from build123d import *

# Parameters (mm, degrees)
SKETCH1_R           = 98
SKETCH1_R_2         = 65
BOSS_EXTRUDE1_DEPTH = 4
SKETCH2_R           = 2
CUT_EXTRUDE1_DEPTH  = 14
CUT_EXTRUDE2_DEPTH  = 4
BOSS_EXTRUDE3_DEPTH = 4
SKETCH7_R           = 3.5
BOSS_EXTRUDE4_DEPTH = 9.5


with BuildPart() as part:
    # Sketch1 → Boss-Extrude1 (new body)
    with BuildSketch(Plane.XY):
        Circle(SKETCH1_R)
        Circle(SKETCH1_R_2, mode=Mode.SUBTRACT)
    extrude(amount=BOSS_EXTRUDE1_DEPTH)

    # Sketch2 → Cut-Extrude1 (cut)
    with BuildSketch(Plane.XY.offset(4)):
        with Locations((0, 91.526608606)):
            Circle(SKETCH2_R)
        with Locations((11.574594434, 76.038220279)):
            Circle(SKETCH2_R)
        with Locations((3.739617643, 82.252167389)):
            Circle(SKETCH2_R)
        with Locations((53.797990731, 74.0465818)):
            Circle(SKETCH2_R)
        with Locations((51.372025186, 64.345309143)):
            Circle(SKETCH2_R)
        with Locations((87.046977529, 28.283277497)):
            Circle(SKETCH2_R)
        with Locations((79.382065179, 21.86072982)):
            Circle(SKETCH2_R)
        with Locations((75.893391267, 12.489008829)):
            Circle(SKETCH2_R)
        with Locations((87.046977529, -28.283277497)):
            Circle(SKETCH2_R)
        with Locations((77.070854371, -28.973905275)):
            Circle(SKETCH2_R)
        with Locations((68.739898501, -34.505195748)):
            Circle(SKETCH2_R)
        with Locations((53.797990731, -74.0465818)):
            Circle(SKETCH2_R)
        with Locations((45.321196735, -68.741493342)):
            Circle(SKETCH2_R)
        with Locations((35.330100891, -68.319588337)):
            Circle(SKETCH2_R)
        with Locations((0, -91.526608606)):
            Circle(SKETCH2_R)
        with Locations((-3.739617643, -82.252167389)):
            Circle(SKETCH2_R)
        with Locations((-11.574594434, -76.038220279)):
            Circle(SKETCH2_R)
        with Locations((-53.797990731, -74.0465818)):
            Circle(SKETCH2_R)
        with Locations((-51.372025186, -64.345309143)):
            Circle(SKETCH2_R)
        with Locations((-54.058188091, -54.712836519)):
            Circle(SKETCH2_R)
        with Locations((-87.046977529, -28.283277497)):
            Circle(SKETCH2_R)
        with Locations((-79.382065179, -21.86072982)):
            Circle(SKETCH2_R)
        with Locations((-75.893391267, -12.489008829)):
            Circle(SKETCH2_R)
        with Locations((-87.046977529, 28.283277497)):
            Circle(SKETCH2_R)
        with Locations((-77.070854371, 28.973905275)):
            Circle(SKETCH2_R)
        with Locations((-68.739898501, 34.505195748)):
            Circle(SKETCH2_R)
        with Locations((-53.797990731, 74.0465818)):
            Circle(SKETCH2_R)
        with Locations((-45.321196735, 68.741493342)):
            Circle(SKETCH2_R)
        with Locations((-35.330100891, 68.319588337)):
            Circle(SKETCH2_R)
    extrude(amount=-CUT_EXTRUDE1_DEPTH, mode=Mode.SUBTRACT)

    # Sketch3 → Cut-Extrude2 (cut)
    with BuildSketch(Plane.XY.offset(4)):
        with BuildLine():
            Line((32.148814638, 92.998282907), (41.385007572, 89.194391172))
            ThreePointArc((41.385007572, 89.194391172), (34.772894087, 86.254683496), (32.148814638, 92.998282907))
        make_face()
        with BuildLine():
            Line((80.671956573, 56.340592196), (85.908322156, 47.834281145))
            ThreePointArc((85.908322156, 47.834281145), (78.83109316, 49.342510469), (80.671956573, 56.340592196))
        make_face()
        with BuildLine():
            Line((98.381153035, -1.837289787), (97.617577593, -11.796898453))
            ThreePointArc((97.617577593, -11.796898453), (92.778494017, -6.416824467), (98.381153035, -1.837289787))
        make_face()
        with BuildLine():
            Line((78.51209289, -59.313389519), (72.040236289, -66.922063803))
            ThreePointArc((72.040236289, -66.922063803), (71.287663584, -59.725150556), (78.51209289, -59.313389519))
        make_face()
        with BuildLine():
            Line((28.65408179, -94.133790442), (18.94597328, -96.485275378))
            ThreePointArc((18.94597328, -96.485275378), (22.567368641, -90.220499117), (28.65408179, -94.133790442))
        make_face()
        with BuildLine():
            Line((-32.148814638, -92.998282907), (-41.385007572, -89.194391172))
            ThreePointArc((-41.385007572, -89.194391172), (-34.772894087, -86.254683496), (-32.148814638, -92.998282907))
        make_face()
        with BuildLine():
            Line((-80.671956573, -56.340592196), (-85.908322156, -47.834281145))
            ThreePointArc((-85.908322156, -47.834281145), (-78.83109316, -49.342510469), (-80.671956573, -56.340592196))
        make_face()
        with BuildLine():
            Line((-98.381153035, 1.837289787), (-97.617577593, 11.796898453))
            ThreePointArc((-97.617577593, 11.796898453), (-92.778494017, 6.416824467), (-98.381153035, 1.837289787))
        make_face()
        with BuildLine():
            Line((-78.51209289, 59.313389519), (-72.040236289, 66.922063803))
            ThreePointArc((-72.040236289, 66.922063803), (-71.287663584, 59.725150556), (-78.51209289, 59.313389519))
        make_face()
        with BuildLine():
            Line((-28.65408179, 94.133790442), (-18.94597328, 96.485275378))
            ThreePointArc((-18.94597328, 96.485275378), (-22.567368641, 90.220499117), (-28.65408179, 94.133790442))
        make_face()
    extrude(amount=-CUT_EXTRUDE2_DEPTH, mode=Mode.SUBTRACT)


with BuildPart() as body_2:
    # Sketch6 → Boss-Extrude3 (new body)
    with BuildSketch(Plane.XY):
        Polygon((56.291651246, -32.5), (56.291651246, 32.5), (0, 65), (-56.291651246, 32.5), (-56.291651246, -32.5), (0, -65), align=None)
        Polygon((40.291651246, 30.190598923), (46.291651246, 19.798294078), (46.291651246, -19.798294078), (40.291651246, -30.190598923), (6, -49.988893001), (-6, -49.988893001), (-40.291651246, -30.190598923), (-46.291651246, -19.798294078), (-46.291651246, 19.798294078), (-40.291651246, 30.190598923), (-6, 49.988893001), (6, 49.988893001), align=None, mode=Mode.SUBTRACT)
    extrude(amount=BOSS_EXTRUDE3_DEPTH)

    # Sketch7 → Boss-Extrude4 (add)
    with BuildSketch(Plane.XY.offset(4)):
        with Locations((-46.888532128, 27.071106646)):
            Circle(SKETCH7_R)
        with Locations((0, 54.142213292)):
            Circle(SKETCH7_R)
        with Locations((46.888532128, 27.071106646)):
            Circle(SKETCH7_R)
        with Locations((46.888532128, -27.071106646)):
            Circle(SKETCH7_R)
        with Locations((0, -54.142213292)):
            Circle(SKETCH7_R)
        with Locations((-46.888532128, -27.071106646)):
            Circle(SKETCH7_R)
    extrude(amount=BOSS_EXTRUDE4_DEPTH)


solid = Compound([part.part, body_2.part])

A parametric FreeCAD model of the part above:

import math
import FreeCAD as App
import Part
import Sketcher

V = App.Vector
Q = App.Units.Quantity

doc = App.newDocument("Part")
body = doc.addObject("PartDesign::Body", "Body")

sketch1 = body.newObject("Sketcher::SketchObject", "Sketch")
sketch1.AttachmentSupport = (doc.getObject("XY_Plane"), [""])
sketch1.MapMode = "FlatFace"
sketch1.addGeometry([
    Part.Circle(V(0, 0, 0), V(0, 0, 1), 98),
    Part.Circle(V(0, 0, 0), V(0, 0, 1), 65),
], False)
sketch1.addConstraint([
    Sketcher.Constraint("Coincident", 0, 3, -1, 1),
    Sketcher.Constraint("Coincident", 1, 3, -1, 1),
    Sketcher.Constraint("Diameter", 0, 196.0),
    Sketcher.Constraint("Diameter", 1, 130.0),
])
pad1 = body.newObject("PartDesign::Pad", "Pad")
pad1.Profile = sketch1
pad1.Length = 4

sketch2 = body.newObject("Sketcher::SketchObject", "Sketch001")
sketch2.AttachmentSupport = (doc.getObject("XY_Plane"), [""])
sketch2.MapMode = "FlatFace"
sketch2.AttachmentOffset = App.Placement(V(0, 0, 4), App.Rotation())
sketch2.addGeometry([
    Part.Circle(V(0, 91.5, 0), V(0, 0, 1), 2),
    Part.Circle(V(11.6, 76, 0), V(0, 0, 1), 2),
    Part.Circle(V(3.7, 82.3, 0), V(0, 0, 1), 2),
    Part.Circle(V(53.8, 74, 0), V(0, 0, 1), 2),
    Part.Circle(V(51.4, 64.3, 0), V(0, 0, 1), 2),
    Part.Circle(V(87, 28.3, 0), V(0, 0, 1), 2),
    Part.Circle(V(79.4, 21.9, 0), V(0, 0, 1), 2),
    Part.Circle(V(75.9, 12.5, 0), V(0, 0, 1), 2),
    Part.Circle(V(87, -28.3, 0), V(0, 0, 1), 2),
    Part.Circle(V(77.1, -29, 0), V(0, 0, 1), 2),
    Part.Circle(V(68.7, -34.5, 0), V(0, 0, 1), 2),
    Part.Circle(V(53.8, -74, 0), V(0, 0, 1), 2),
    Part.Circle(V(45.3, -68.7, 0), V(0, 0, 1), 2),
    Part.Circle(V(35.3, -68.3, 0), V(0, 0, 1), 2),
    Part.Circle(V(0, -91.5, 0), V(0, 0, 1), 2),
    Part.Circle(V(-3.7, -82.3, 0), V(0, 0, 1), 2),
    Part.Circle(V(-11.6, -76, 0), V(0, 0, 1), 2),
    Part.Circle(V(-53.8, -74, 0), V(0, 0, 1), 2),
    Part.Circle(V(-51.4, -64.3, 0), V(0, 0, 1), 2),
    Part.Circle(V(-54.1, -54.7, 0), V(0, 0, 1), 2),
    Part.Circle(V(-87, -28.3, 0), V(0, 0, 1), 2),
    Part.Circle(V(-79.4, -21.9, 0), V(0, 0, 1), 2),
    Part.Circle(V(-75.9, -12.5, 0), V(0, 0, 1), 2),
    Part.Circle(V(-87, 28.3, 0), V(0, 0, 1), 2),
    Part.Circle(V(-77.1, 29, 0), V(0, 0, 1), 2),
    Part.Circle(V(-68.7, 34.5, 0), V(0, 0, 1), 2),
    Part.Circle(V(-53.8, 74, 0), V(0, 0, 1), 2),
    Part.Circle(V(-45.3, 68.7, 0), V(0, 0, 1), 2),
    Part.Circle(V(-35.3, 68.3, 0), V(0, 0, 1), 2),
], False)
sketch2.addConstraint([
    Sketcher.Constraint("Equal", 0, 1),
    Sketcher.Constraint("Equal", 1, 2),
    Sketcher.Constraint("Equal", 2, 3),
    Sketcher.Constraint("Equal", 3, 4),
    Sketcher.Constraint("Equal", 4, 5),
    Sketcher.Constraint("Equal", 5, 6),
    Sketcher.Constraint("Equal", 6, 7),
    Sketcher.Constraint("Equal", 7, 8),
    Sketcher.Constraint("Equal", 8, 9),
    Sketcher.Constraint("Equal", 9, 10),
    Sketcher.Constraint("Equal", 10, 11),
    Sketcher.Constraint("Equal", 11, 12),
    Sketcher.Constraint("Equal", 12, 13),
    Sketcher.Constraint("Equal", 13, 14),
    Sketcher.Constraint("Equal", 14, 15),
    Sketcher.Constraint("Equal", 15, 16),
    Sketcher.Constraint("Equal", 16, 17),
    Sketcher.Constraint("Equal", 17, 18),
    Sketcher.Constraint("Equal", 18, 19),
    Sketcher.Constraint("Equal", 19, 20),
    Sketcher.Constraint("Equal", 20, 21),
    Sketcher.Constraint("Equal", 21, 22),
    Sketcher.Constraint("Equal", 22, 23),
    Sketcher.Constraint("Equal", 23, 24),
    Sketcher.Constraint("Equal", 24, 25),
    Sketcher.Constraint("Equal", 25, 26),
    Sketcher.Constraint("Equal", 26, 27),
    Sketcher.Constraint("Equal", 27, 28),
    Sketcher.Constraint("Symmetric", 0, 3, 14, 3, -1, 1),
    Sketcher.Constraint("Symmetric", 2, 3, 15, 3, -1, 1),
    Sketcher.Constraint("Symmetric", 1, 3, 16, 3, -1, 1),
    Sketcher.Constraint("Symmetric", 3, 3, 17, 3, -1, 1),
    Sketcher.Constraint("Symmetric", 4, 3, 18, 3, -1, 1),
    Sketcher.Constraint("Symmetric", 5, 3, 20, 3, -1, 1),
    Sketcher.Constraint("Symmetric", 6, 3, 21, 3, -1, 1),
    Sketcher.Constraint("Symmetric", 7, 3, 22, 3, -1, 1),
    Sketcher.Constraint("Symmetric", 8, 3, 23, 3, -1, 1),
    Sketcher.Constraint("Symmetric", 9, 3, 24, 3, -1, 1),
    Sketcher.Constraint("Symmetric", 10, 3, 25, 3, -1, 1),
    Sketcher.Constraint("Symmetric", 11, 3, 26, 3, -1, 1),
    Sketcher.Constraint("Symmetric", 12, 3, 27, 3, -1, 1),
    Sketcher.Constraint("Symmetric", 13, 3, 28, 3, -1, 1),
    Sketcher.Constraint("Symmetric", 11, 3, 17, 3, -2),
    Sketcher.Constraint("Symmetric", 8, 3, 20, 3, -2),
    Sketcher.Constraint("PointOnObject", 0, 3, -2),
    Sketcher.Constraint("Diameter", 0, 4.0),
    Sketcher.Constraint("DistanceX", -1, 1, 10, 3, 68.739899),
    Sketcher.Constraint("DistanceX", -1, 1, 13, 3, 35.330101),
    Sketcher.Constraint("DistanceY", 4, 3, 0, 3, 27.181299),
    Sketcher.Constraint("DistanceY", 7, 3, 4, 3, 51.8563),
    Sketcher.Constraint("DistanceX", 3, 3, 7, 3, 22.095401),
    Sketcher.Constraint("DistanceX", 12, 3, 10, 3, 23.418702),
    Sketcher.Constraint("DistanceY", -1, 1, 0, 3, 91.526609),
    Sketcher.Constraint("DistanceY", -1, 1, 1, 3, 76.03822),
    Sketcher.Constraint("DistanceX", -1, 1, 3, 3, 53.797991),
    Sketcher.Constraint("DistanceY", -1, 1, 3, 3, 74.046582),
    Sketcher.Constraint("DistanceY", -1, 1, 6, 3, 21.86073),
    Sketcher.Constraint("DistanceY", 13, 3, -1, 1, 68.319588),
    Sketcher.Constraint("DistanceX", 19, 3, -1, 1, 54.058188),
    Sketcher.Constraint("DistanceY", 2, 3, 0, 3, 9.274441),
    Sketcher.Constraint("DistanceX", 1, 3, 4, 3, 39.797431),
    Sketcher.Constraint("DistanceY", 5, 3, 4, 3, 36.062032),
    Sketcher.Constraint("DistanceX", 2, 3, 5, 3, 83.30736),
    Sketcher.Constraint("DistanceX", 4, 3, 6, 3, 28.01004),
    Sketcher.Constraint("DistanceX", 9, 3, 6, 3, 2.311211),
    Sketcher.Constraint("DistanceY", 10, 3, 9, 3, 5.53129),
    Sketcher.Constraint("DistanceX", 10, 3, 8, 3, 18.307079),
    Sketcher.Constraint("DistanceY", 10, 3, 8, 3, 6.221918),
    Sketcher.Constraint("DistanceY", 11, 3, 12, 3, 5.305088),
    Sketcher.Constraint("DistanceX", 16, 3, 12, 3, 56.895791),
    Sketcher.Constraint("DistanceY", 15, 3, 19, 3, 27.539331),
])
pocket1 = body.newObject("PartDesign::Pocket", "Pocket")
pocket1.Profile = sketch2
pocket1.Length = 14

sketch3 = body.newObject("Sketcher::SketchObject", "Sketch002")
sketch3.AttachmentSupport = (doc.getObject("XY_Plane"), [""])
sketch3.MapMode = "FlatFace"
sketch3.AttachmentOffset = App.Placement(V(0, 0, 4), App.Rotation())
sketch3.addGeometry([
    Part.LineSegment(V(41.385008, 89.194391, 0), V(32.148815, 92.998283, 0)),
    Part.ArcOfCircle(Part.Circle(V(36.676966, 90.877941, 0), V(0, 0, 1), 5), math.radians(154.908293), math.radians(340.323444)),
    Part.LineSegment(V(85.908322, 47.834281, 0), V(80.671957, 56.340592, 0)),
    Part.ArcOfCircle(Part.Circle(V(83.089002, 51.963619, 0), V(0, 0, 1), 5), math.radians(118.908293), math.radians(304.323444)),
    Part.LineSegment(V(97.617578, -11.796898, 0), V(98.381153, -1.83729, 0)),
    Part.ArcOfCircle(Part.Circle(V(97.763864, -6.799039, 0), V(0, 0, 1), 5), math.radians(82.908293), math.radians(268.323444)),
    Part.LineSegment(V(72.040236, -66.922064, 0), V(78.512093, -59.31339, 0)),
    Part.ArcOfCircle(Part.Circle(V(75.096252, -62.964695, 0), V(0, 0, 1), 5), math.radians(46.908293), math.radians(232.323444)),
    Part.LineSegment(V(18.945973, -96.485275, 0), V(28.654082, -94.13379, 0)),
    Part.ArcOfCircle(Part.Circle(V(23.744425, -95.079978, 0), V(0, 0, 1), 5), math.radians(10.908293), math.radians(196.323444)),
    Part.LineSegment(V(-41.385008, -89.194391, 0), V(-32.148815, -92.998283, 0)),
    Part.ArcOfCircle(Part.Circle(V(-36.676966, -90.877941, 0), V(0, 0, 1), 5), math.radians(-25.091707), math.radians(160.323444)),
    Part.LineSegment(V(-85.908322, -47.834281, 0), V(-80.671957, -56.340592, 0)),
    Part.ArcOfCircle(Part.Circle(V(-83.089002, -51.963619, 0), V(0, 0, 1), 5), math.radians(-61.091707), math.radians(124.323444)),
    Part.LineSegment(V(-97.617578, 11.796898, 0), V(-98.381153, 1.83729, 0)),
    Part.ArcOfCircle(Part.Circle(V(-97.763864, 6.799039, 0), V(0, 0, 1), 5), math.radians(-97.091707), math.radians(88.323444)),
    Part.LineSegment(V(-72.040236, 66.922064, 0), V(-78.512093, 59.31339, 0)),
    Part.ArcOfCircle(Part.Circle(V(-75.096252, 62.964695, 0), V(0, 0, 1), 5), math.radians(-133.091707), math.radians(52.323444)),
    Part.LineSegment(V(-18.945973, 96.485275, 0), V(-28.654082, 94.13379, 0)),
    Part.ArcOfCircle(Part.Circle(V(-23.744425, 95.079978, 0), V(0, 0, 1), 5), math.radians(-169.091707), math.radians(16.323444)),
], False)
sketch3.addConstraint([
    Sketcher.Constraint("Coincident", 0, 1, 1, 2),
    Sketcher.Constraint("Coincident", 1, 1, 0, 2),
    Sketcher.Constraint("Coincident", 2, 1, 3, 2),
    Sketcher.Constraint("Coincident", 3, 1, 2, 2),
    Sketcher.Constraint("Coincident", 4, 1, 5, 2),
    Sketcher.Constraint("Coincident", 5, 1, 4, 2),
    Sketcher.Constraint("Coincident", 6, 1, 7, 2),
    Sketcher.Constraint("Coincident", 7, 1, 6, 2),
    Sketcher.Constraint("Coincident", 8, 1, 9, 2),
    Sketcher.Constraint("Coincident", 9, 1, 8, 2),
    Sketcher.Constraint("Coincident", 10, 1, 11, 2),
    Sketcher.Constraint("Coincident", 11, 1, 10, 2),
    Sketcher.Constraint("Coincident", 12, 1, 13, 2),
    Sketcher.Constraint("Coincident", 13, 1, 12, 2),
    Sketcher.Constraint("Coincident", 14, 1, 15, 2),
    Sketcher.Constraint("Coincident", 15, 1, 14, 2),
    Sketcher.Constraint("Coincident", 16, 1, 17, 2),
    Sketcher.Constraint("Coincident", 17, 1, 16, 2),
    Sketcher.Constraint("Coincident", 18, 1, 19, 2),
    Sketcher.Constraint("Coincident", 19, 1, 18, 2),
    Sketcher.Constraint("Equal", 1, 3),
    Sketcher.Constraint("Equal", 3, 5),
    Sketcher.Constraint("Equal", 5, 7),
    Sketcher.Constraint("Equal", 7, 9),
    Sketcher.Constraint("Equal", 9, 11),
    Sketcher.Constraint("Equal", 11, 13),
    Sketcher.Constraint("Equal", 13, 15),
    Sketcher.Constraint("Equal", 15, 17),
    Sketcher.Constraint("Equal", 17, 19),
    Sketcher.Constraint("Symmetric", 1, 3, 11, 3, -1, 1),
    Sketcher.Constraint("Symmetric", 3, 3, 13, 3, -1, 1),
    Sketcher.Constraint("Symmetric", 5, 3, 15, 3, -1, 1),
    Sketcher.Constraint("Symmetric", 7, 3, 17, 3, -1, 1),
    Sketcher.Constraint("Symmetric", 9, 3, 19, 3, -1, 1),
    Sketcher.Constraint("Parallel", 0, 10),
    Sketcher.Constraint("Parallel", 2, 12),
    Sketcher.Constraint("Parallel", 4, 14),
    Sketcher.Constraint("Parallel", 6, 16),
    Sketcher.Constraint("Parallel", 8, 18),
    Sketcher.Constraint("Equal", 0, 2),
    Sketcher.Constraint("Equal", 2, 4),
    Sketcher.Constraint("Equal", 4, 6),
    Sketcher.Constraint("Equal", 6, 8),
    Sketcher.Constraint("Equal", 8, 10),
    Sketcher.Constraint("Equal", 10, 12),
    Sketcher.Constraint("Equal", 12, 14),
    Sketcher.Constraint("Equal", 14, 16),
    Sketcher.Constraint("Equal", 16, 18),
    Sketcher.Constraint("Radius", 1, 5.0),
    Sketcher.Constraint("DistanceY", 2, 1, 1, 1, 45.164002),
    Sketcher.Constraint("DistanceY", 4, 1, -1, 1, 11.796898),
    Sketcher.Constraint("DistanceX", 1, 3, 5, 3, 61.086898),
    Sketcher.Constraint("DistanceY", 3, 1, 0, 1, 32.853799),
    Sketcher.Constraint("DistanceY", 7, 1, 5, 1, 57.4761),
    Sketcher.Constraint("DistanceY", 9, 1, 7, 1, 34.820401),
    Sketcher.Constraint("DistanceY", 9, 1, 10, 1, 4.939399),
    Sketcher.Constraint("DistanceY", -1, 1, 1, 3, 90.877941),
    Sketcher.Constraint("DistanceY", -1, 1, 3, 3, 51.963619),
    Sketcher.Constraint("DistanceY", 5, 3, -1, 1, 6.799039),
    Sketcher.Constraint("DistanceY", 9, 3, -1, 1, 95.079978),
    Sketcher.Constraint("DistanceX", -1, 1, 9, 1, 28.654082),
    Sketcher.Constraint("DistanceX", 3, 3, 5, 3, 14.674862),
    Sketcher.Constraint("DistanceX", 7, 3, 5, 3, 22.667611),
    Sketcher.Constraint("DistanceX", 9, 3, 5, 3, 74.019439),
    Sketcher.Constraint("DistanceY", 6, 1, 7, 3, 3.957368),
])
pocket2 = body.newObject("PartDesign::Pocket", "Pocket001")
pocket2.Profile = sketch3
pocket2.Length = 4
body2 = doc.addObject("PartDesign::Body", "Body001")

sketch4 = body2.newObject("Sketcher::SketchObject", "Sketch003")
sketch4.AttachmentSupport = (doc.getObject("XY_Plane001"), [""])
sketch4.MapMode = "FlatFace"
sketch4.addGeometry([
    Part.LineSegment(V(56, -32, 0), V(56, 32, 0)),
    Part.LineSegment(V(56, 32, 0), V(0, 65, 0)),
    Part.LineSegment(V(0, 65, 0), V(-56, 32, 0)),
    Part.LineSegment(V(-56, 32, 0), V(-56, -32, 0)),
    Part.LineSegment(V(-56, -32, 0), V(0, -65, 0)),
    Part.LineSegment(V(0, -65, 0), V(56, -32, 0)),
    Part.LineSegment(V(6, 50, 0), V(40, 30, 0)),
    Part.LineSegment(V(40, 30, 0), V(46, 20, 0)),
    Part.LineSegment(V(46, 20, 0), V(46, -20, 0)),
    Part.LineSegment(V(46, -20, 0), V(40, -30, 0)),
    Part.LineSegment(V(40, -30, 0), V(6, -50, 0)),
    Part.LineSegment(V(6, -50, 0), V(-6, -50, 0)),
    Part.LineSegment(V(-6, -50, 0), V(-40, -30, 0)),
    Part.LineSegment(V(-40, -30, 0), V(-46, -20, 0)),
    Part.LineSegment(V(-46, -20, 0), V(-46, 20, 0)),
    Part.LineSegment(V(-46, 20, 0), V(-40, 30, 0)),
    Part.LineSegment(V(-40, 30, 0), V(-6, 50, 0)),
    Part.LineSegment(V(-6, 50, 0), V(6, 50, 0)),
], False)
sketch4.addConstraint([
    Sketcher.Constraint("Coincident", 0, 2, 1, 1),
    Sketcher.Constraint("Coincident", 1, 2, 2, 1),
    Sketcher.Constraint("Coincident", 2, 2, 3, 1),
    Sketcher.Constraint("Coincident", 3, 2, 4, 1),
    Sketcher.Constraint("Coincident", 4, 2, 5, 1),
    Sketcher.Constraint("Coincident", 5, 2, 0, 1),
    Sketcher.Constraint("Coincident", 6, 2, 7, 1),
    Sketcher.Constraint("Coincident", 7, 2, 8, 1),
    Sketcher.Constraint("Coincident", 8, 2, 9, 1),
    Sketcher.Constraint("Coincident", 9, 2, 10, 1),
    Sketcher.Constraint("Coincident", 10, 2, 11, 1),
    Sketcher.Constraint("Coincident", 11, 2, 12, 1),
    Sketcher.Constraint("Coincident", 12, 2, 13, 1),
    Sketcher.Constraint("Coincident", 13, 2, 14, 1),
    Sketcher.Constraint("Coincident", 14, 2, 15, 1),
    Sketcher.Constraint("Coincident", 15, 2, 16, 1),
    Sketcher.Constraint("Coincident", 16, 2, 17, 1),
    Sketcher.Constraint("Coincident", 17, 2, 6, 1),
    Sketcher.Constraint("Vertical", 0),
    Sketcher.Constraint("Vertical", 3),
    Sketcher.Constraint("Vertical", 8),
    Sketcher.Constraint("Horizontal", 11),
    Sketcher.Constraint("Vertical", 14),
    Sketcher.Constraint("Horizontal", 17),
    Sketcher.Constraint("Symmetric", 0, 2, 3, 2, -1, 1),
    Sketcher.Constraint("Symmetric", 1, 2, 4, 2, -1, 1),
    Sketcher.Constraint("Symmetric", 6, 2, 12, 2, -1, 1),
    Sketcher.Constraint("Symmetric", 7, 2, 13, 2, -1, 1),
    Sketcher.Constraint("Symmetric", 9, 2, 15, 2, -1, 1),
    Sketcher.Constraint("Symmetric", 10, 2, 16, 2, -1, 1),
    Sketcher.Constraint("Symmetric", 9, 2, 12, 2, -2),
    Sketcher.Constraint("PointOnObject", 1, 2, -2),
    Sketcher.Constraint("Parallel", 2, 5),
    Sketcher.Constraint("Parallel", 4, 6),
    Sketcher.Constraint("Perpendicular", 5, 7),
    Sketcher.Constraint("Perpendicular", 6, 9),
    Sketcher.Constraint("Perpendicular", 7, 10),
    Sketcher.Constraint("Perpendicular", 9, 12),
    Sketcher.Constraint("Perpendicular", 12, 15),
    Sketcher.Constraint("Horizontal", 0, 2, 2, 2),
    Sketcher.Constraint("DistanceX", 11, 2, 11, 1, 12.0),
    Sketcher.Constraint("DistanceY", 0, 1, 0, 2, 65.0),
    Sketcher.Constraint("Angle", 1, Q("150 deg")),
    Sketcher.Constraint("Distance", 1, 65.0),
    Sketcher.Constraint("Distance", 7, 12.0),
    Sketcher.Constraint("DistanceX", 6, 2, 0, 2, 16.0),
    Sketcher.Constraint("DistanceY", 8, 2, 8, 1, 39.596588),
])
pad2 = body2.newObject("PartDesign::Pad", "Pad001")
pad2.Profile = sketch4
pad2.Length = 4

sketch5 = body2.newObject("Sketcher::SketchObject", "Sketch004")
sketch5.AttachmentSupport = (doc.getObject("XY_Plane001"), [""])
sketch5.MapMode = "FlatFace"
sketch5.AttachmentOffset = App.Placement(V(0, 0, 4), App.Rotation())
sketch5.addGeometry([
    Part.Circle(V(-46.9, 27.1, 0), V(0, 0, 1), 3.5),
    Part.Circle(V(0, 54.1, 0), V(0, 0, 1), 3.5),
    Part.Circle(V(46.9, 27.1, 0), V(0, 0, 1), 3.5),
    Part.Circle(V(46.9, -27.1, 0), V(0, 0, 1), 3.5),
    Part.Circle(V(0, -54.1, 0), V(0, 0, 1), 3.5),
    Part.Circle(V(-46.9, -27.1, 0), V(0, 0, 1), 3.5),
], False)
sketch5.addConstraint([
    Sketcher.Constraint("Equal", 0, 1),
    Sketcher.Constraint("Equal", 1, 2),
    Sketcher.Constraint("Equal", 2, 3),
    Sketcher.Constraint("Equal", 3, 4),
    Sketcher.Constraint("Equal", 4, 5),
    Sketcher.Constraint("Symmetric", 0, 3, 3, 3, -1, 1),
    Sketcher.Constraint("Symmetric", 1, 3, 4, 3, -1, 1),
    Sketcher.Constraint("Symmetric", 2, 3, 5, 3, -1, 1),
    Sketcher.Constraint("Symmetric", 0, 3, 2, 3, -2),
    Sketcher.Constraint("PointOnObject", 1, 3, -2),
    Sketcher.Constraint("Diameter", 0, 7.0),
    Sketcher.Constraint("DistanceY", 3, 3, 1, 3, 81.21332),
    Sketcher.Constraint("DistanceX", 0, 3, -1, 1, 46.888532),
    Sketcher.Constraint("DistanceY", -1, 1, 0, 3, 27.071107),
])
pad3 = body2.newObject("PartDesign::Pad", "Pad002")
pad3.Profile = sketch5
pad3.Length = 9.5

doc.recompute()
